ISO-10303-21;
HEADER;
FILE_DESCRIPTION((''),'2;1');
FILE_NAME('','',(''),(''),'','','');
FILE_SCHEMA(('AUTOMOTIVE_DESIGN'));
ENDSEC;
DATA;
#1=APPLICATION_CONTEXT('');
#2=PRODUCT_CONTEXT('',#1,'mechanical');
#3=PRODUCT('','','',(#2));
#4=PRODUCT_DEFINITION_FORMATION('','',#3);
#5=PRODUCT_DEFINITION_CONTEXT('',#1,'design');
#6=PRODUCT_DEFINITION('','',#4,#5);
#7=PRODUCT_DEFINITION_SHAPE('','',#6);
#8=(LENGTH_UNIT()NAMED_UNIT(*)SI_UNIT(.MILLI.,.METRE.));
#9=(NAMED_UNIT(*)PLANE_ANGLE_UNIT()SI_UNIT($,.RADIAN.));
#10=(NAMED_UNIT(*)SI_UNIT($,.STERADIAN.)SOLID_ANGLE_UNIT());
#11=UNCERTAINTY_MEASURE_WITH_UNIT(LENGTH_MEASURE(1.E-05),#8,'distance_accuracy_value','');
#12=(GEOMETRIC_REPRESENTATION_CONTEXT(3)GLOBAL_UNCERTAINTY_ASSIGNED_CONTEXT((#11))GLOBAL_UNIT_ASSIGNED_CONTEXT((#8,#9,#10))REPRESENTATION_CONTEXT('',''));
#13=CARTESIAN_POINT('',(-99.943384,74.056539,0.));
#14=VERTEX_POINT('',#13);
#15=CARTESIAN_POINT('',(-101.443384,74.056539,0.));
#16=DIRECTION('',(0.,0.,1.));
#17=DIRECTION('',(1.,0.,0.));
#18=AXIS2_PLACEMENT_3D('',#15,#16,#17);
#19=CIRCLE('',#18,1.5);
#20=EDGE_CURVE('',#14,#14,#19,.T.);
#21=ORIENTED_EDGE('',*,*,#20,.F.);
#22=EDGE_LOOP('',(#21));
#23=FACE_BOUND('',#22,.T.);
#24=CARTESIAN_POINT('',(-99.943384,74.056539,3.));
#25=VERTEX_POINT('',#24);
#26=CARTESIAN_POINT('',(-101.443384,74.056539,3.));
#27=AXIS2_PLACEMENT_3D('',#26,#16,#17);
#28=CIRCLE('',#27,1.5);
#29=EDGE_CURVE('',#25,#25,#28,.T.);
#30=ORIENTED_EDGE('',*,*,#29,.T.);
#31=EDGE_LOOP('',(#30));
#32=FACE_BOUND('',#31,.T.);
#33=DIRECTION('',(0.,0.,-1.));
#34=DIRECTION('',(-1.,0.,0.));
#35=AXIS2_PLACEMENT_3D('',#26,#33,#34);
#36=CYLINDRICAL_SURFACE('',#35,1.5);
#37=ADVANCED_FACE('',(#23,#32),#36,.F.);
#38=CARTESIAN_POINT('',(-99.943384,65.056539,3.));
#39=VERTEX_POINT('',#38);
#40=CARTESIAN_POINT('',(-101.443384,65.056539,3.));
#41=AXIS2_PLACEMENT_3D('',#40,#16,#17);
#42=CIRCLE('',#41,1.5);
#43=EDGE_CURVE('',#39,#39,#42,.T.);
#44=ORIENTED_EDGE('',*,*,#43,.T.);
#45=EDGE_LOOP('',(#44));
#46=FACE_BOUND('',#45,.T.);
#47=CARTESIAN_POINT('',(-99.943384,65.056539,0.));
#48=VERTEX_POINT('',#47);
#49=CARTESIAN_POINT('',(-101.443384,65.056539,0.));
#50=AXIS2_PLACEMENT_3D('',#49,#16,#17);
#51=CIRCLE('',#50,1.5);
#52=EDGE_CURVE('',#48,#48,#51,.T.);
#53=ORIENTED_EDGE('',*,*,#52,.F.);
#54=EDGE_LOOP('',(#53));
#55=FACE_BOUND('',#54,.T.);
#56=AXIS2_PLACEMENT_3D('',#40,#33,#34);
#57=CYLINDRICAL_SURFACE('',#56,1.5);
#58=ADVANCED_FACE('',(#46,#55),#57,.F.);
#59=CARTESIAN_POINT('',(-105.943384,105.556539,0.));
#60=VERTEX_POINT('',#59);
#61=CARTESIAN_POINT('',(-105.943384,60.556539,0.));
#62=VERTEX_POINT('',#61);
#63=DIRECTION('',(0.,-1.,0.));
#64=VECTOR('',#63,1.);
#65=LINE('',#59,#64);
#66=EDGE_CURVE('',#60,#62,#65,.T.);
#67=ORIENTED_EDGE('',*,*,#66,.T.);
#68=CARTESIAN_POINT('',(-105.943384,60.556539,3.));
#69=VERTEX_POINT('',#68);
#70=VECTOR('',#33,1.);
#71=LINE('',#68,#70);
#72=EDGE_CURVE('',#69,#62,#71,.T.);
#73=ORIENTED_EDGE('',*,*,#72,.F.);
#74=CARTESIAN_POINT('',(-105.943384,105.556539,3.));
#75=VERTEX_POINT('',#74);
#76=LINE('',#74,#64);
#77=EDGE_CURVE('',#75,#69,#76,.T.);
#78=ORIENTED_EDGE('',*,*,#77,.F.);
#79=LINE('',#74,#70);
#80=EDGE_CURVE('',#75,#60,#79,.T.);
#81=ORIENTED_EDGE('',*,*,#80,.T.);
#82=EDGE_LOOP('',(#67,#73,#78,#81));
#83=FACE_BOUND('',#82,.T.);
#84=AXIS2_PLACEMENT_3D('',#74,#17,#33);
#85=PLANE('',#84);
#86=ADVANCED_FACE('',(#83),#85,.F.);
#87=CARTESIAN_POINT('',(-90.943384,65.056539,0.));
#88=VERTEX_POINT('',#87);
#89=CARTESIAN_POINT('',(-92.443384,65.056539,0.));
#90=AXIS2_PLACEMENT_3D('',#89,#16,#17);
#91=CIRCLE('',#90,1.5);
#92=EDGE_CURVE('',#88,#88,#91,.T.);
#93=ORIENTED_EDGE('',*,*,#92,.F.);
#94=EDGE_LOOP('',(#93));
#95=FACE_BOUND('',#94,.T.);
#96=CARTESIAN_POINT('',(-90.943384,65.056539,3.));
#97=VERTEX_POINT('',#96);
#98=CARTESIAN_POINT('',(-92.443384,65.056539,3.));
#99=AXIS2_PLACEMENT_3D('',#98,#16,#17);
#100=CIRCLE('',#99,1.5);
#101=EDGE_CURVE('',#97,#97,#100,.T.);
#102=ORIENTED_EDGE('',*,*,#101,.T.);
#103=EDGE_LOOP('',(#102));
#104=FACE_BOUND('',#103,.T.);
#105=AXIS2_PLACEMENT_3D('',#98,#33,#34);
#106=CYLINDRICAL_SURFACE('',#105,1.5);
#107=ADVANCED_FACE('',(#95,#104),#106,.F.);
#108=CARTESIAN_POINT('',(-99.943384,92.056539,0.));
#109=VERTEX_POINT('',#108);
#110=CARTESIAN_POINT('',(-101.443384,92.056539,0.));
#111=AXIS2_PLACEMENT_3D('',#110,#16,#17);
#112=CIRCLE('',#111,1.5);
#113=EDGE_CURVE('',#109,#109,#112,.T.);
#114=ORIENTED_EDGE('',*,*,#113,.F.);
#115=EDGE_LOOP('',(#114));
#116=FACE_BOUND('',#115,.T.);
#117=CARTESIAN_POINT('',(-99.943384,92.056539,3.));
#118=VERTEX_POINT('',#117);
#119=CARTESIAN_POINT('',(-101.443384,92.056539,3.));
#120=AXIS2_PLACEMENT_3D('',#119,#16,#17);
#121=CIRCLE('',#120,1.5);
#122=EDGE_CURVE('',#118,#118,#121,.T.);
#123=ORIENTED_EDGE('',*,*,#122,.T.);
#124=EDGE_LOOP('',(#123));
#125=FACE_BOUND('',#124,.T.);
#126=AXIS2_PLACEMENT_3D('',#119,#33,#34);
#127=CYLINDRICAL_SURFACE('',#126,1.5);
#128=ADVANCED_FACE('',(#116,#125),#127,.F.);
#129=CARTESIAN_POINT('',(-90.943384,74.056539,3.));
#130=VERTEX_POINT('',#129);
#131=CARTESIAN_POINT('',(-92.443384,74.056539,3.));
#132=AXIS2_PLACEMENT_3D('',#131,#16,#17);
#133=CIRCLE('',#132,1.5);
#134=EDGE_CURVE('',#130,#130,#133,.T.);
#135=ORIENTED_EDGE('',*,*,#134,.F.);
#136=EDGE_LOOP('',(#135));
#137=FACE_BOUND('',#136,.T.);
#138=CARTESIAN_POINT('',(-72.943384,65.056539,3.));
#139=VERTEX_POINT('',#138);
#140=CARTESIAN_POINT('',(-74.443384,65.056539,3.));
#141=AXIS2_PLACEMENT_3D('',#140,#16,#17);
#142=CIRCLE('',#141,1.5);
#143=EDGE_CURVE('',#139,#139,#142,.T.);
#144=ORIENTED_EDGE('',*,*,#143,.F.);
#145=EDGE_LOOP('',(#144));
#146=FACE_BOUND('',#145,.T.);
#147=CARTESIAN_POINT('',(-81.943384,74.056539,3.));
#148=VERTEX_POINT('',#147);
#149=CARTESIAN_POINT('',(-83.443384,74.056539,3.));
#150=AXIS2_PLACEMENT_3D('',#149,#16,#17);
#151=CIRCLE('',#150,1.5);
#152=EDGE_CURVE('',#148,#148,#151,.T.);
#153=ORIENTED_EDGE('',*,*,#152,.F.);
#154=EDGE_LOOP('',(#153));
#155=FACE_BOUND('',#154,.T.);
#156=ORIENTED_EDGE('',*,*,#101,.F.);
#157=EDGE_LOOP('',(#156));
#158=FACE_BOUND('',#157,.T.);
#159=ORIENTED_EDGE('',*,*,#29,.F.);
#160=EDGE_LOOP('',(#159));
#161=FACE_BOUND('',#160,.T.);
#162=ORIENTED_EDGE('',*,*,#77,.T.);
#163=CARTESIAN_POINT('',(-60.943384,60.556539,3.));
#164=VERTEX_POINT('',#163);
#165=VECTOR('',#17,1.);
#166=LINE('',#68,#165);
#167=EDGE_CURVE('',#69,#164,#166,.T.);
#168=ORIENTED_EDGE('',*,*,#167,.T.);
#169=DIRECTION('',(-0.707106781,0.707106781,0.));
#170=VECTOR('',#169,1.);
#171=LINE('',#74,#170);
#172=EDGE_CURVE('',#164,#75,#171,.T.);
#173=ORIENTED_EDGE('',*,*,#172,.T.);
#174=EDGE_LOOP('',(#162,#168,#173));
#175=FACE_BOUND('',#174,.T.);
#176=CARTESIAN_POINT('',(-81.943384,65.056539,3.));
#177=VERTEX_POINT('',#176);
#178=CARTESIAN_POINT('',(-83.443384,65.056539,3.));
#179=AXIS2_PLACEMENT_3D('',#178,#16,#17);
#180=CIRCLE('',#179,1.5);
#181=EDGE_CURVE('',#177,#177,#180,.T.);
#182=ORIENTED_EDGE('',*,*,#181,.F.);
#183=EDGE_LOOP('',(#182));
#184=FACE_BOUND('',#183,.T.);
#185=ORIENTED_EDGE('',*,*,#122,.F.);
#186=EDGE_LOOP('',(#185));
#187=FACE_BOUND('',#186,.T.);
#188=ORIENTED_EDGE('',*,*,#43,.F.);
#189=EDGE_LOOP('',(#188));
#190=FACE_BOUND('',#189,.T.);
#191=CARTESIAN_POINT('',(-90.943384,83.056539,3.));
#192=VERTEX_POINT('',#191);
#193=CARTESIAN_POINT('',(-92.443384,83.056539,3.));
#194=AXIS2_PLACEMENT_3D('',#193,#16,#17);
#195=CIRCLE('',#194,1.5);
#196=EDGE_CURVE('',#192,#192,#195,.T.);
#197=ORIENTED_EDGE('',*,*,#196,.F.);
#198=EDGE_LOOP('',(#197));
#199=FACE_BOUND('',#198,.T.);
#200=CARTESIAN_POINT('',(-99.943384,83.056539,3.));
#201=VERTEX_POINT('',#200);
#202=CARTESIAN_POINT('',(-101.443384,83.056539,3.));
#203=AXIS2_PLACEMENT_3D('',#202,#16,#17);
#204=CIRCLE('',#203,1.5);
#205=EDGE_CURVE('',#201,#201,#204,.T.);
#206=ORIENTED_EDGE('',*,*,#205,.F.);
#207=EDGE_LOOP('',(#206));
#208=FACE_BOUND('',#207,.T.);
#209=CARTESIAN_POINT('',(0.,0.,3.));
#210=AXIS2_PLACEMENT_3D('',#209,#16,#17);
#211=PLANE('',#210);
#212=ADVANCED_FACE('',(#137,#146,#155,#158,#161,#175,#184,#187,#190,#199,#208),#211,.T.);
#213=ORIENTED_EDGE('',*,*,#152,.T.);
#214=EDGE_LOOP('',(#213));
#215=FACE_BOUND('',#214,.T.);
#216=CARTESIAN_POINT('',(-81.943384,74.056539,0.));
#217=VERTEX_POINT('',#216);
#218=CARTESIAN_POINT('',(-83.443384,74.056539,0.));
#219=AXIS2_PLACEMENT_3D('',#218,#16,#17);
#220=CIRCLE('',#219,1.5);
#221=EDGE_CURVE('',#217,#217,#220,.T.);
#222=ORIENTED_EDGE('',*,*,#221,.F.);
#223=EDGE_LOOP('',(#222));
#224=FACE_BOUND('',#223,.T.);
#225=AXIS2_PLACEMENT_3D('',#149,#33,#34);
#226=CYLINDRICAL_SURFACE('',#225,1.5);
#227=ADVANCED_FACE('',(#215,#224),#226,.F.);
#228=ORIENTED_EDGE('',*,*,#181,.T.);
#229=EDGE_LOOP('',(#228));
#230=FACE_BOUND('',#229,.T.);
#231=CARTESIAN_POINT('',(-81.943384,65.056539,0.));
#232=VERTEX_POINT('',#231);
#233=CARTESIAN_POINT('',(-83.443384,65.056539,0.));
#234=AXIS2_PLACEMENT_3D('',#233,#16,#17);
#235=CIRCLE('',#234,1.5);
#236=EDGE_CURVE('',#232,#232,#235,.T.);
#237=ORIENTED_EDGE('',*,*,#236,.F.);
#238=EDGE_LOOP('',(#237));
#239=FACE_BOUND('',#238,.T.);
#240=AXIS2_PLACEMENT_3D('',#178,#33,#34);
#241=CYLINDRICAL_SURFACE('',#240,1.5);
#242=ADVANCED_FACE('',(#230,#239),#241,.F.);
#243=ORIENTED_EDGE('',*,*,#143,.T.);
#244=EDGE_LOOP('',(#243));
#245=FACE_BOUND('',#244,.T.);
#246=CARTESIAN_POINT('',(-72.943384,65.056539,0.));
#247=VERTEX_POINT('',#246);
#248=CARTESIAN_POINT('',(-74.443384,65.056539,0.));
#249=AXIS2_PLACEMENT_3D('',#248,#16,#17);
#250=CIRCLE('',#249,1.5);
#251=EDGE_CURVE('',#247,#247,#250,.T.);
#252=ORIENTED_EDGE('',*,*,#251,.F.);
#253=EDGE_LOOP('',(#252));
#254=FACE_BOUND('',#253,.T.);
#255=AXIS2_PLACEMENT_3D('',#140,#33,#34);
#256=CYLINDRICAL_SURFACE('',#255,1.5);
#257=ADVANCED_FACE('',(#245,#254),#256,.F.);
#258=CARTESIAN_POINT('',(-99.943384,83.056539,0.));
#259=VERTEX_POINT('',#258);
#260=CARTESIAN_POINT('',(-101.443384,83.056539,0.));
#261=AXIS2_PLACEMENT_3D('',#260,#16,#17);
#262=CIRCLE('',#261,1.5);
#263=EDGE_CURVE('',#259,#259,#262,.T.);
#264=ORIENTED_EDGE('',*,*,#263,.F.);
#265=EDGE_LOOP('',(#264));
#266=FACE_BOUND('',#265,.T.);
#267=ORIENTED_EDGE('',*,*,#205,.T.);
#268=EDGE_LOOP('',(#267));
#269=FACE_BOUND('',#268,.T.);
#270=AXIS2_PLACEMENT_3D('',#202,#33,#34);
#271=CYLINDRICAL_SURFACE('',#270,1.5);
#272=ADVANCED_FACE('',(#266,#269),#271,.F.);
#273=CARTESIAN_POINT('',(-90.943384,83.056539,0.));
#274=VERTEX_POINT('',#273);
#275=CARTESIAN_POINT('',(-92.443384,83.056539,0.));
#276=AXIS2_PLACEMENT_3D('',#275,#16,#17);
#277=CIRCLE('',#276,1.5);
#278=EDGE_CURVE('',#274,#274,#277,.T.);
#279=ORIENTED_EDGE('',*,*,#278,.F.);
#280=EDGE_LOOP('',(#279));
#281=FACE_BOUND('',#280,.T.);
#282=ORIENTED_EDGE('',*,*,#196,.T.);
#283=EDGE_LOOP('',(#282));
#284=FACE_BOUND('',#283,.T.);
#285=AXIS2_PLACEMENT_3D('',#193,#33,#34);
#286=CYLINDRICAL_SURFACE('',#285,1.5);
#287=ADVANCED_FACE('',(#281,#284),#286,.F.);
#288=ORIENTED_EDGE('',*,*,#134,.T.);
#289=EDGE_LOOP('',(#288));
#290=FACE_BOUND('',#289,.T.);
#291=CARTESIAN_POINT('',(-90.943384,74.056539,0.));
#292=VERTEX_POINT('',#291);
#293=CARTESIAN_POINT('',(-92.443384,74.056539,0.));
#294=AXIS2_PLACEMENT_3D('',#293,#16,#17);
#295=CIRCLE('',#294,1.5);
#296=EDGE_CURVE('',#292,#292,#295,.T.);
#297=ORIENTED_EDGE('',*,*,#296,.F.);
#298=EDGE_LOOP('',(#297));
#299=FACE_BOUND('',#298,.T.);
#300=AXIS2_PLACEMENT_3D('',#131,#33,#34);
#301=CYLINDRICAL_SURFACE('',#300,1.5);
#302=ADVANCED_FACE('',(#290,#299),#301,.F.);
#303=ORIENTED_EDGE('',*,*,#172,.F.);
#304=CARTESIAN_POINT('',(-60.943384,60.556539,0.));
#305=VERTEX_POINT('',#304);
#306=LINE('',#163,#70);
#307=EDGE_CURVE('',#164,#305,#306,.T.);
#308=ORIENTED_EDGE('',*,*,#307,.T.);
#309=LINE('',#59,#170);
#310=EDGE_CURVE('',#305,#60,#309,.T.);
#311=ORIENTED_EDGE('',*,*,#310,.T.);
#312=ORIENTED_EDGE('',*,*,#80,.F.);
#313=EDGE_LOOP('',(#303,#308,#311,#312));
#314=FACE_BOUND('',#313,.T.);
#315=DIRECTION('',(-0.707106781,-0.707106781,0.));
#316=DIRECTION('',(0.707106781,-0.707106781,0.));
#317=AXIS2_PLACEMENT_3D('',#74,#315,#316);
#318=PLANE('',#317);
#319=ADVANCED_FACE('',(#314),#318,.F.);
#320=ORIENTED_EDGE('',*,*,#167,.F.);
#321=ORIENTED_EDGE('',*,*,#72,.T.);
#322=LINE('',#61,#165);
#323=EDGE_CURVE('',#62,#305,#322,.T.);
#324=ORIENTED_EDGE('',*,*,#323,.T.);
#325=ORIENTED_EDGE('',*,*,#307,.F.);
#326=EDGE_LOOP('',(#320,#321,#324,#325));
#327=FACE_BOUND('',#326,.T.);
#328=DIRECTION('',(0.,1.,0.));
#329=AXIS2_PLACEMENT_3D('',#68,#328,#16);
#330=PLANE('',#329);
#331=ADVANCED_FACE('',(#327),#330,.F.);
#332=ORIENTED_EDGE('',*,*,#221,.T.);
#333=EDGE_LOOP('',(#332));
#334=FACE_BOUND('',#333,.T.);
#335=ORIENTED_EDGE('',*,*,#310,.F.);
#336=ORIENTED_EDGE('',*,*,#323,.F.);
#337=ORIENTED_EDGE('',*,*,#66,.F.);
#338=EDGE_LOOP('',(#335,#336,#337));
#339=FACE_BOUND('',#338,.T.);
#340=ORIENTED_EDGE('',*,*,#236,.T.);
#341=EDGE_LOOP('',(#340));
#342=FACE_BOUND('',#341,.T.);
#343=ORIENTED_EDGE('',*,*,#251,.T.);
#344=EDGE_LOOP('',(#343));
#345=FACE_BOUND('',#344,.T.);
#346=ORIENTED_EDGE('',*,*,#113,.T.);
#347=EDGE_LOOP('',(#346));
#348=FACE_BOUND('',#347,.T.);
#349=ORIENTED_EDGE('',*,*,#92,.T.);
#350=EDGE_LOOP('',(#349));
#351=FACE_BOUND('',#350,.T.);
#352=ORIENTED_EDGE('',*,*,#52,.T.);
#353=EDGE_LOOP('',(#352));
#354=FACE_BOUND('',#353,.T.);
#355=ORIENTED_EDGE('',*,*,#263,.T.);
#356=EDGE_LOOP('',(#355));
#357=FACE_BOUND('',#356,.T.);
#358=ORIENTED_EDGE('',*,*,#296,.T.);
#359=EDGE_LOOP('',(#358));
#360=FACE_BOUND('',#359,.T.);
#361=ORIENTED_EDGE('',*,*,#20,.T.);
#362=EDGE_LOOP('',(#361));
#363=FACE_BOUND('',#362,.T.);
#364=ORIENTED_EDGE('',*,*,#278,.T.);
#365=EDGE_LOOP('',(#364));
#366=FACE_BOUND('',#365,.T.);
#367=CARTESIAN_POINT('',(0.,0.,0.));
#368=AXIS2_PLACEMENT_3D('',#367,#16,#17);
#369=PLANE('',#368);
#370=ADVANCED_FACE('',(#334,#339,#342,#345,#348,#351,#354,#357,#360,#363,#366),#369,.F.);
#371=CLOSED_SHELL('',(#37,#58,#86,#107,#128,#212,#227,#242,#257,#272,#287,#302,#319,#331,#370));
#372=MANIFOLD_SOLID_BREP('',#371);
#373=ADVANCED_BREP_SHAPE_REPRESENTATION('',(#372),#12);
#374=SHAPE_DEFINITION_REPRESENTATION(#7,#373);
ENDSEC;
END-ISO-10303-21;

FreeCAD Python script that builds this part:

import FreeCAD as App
import Part
import Sketcher
from FreeCAD import Vector
Q = App.Units.Quantity

doc = App.newDocument("Part")
params = doc.addObject("Spreadsheet::Sheet", "Params")
for row, (alias, value) in enumerate([
    ("sketch1_diameter", "3 mm"),
    ("sketch1_width", "45 mm"),
    ("pad1_length", "3 mm"),
], start=1):
    params.set(f"A{row}", alias)
    params.set(f"B{row}", "=" + value)
    params.setAlias(f"B{row}", alias)

body = doc.addObject("PartDesign::Body", "Body")

# Sketch on XY plane
sketch1 = doc.addObject("Sketcher::SketchObject", "Sketch")
body.addObject(sketch1)
sketch1.AttachmentSupport = (doc.XY_Plane, [""])
sketch1.MapMode = "FlatFace"
sketch1.addGeometry([
    Part.LineSegment(Vector(-105.9, 105.6, 0), Vector(-105.9, 60.6, 0)),  # 0
    Part.LineSegment(Vector(-105.9, 60.6, 0), Vector(-60.9, 60.6, 0)),  # 1
    Part.LineSegment(Vector(-60.9, 60.6, 0), Vector(-105.9, 105.6, 0)),  # 2
    Part.Circle(Vector(-101.4, 65.1, 0), Vector(0, 0, 1), 1.5),  # 3
    Part.Circle(Vector(-92.4, 65.1, 0), Vector(0, 0, 1), 1.5),  # 4
    Part.Circle(Vector(-101.4, 74.1, 0), Vector(0, 0, 1), 1.5),  # 5
    Part.Circle(Vector(-92.4, 74.1, 0), Vector(0, 0, 1), 1.5),  # 6
    Part.Circle(Vector(-83.4, 65.1, 0), Vector(0, 0, 1), 1.5),  # 7
    Part.Circle(Vector(-74.4, 65.1, 0), Vector(0, 0, 1), 1.5),  # 8
    Part.Circle(Vector(-83.4, 74.1, 0), Vector(0, 0, 1), 1.5),  # 9
    Part.Circle(Vector(-101.4, 83.1, 0), Vector(0, 0, 1), 1.5),  # 10
    Part.Circle(Vector(-92.4, 83.1, 0), Vector(0, 0, 1), 1.5),  # 11
    Part.Circle(Vector(-101.4, 92.1, 0), Vector(0, 0, 1), 1.5),  # 12
], False)
sketch1.addConstraint([
    Sketcher.Constraint("Coincident", 0, 2, 1, 1),
    Sketcher.Constraint("Coincident", 1, 2, 2, 1),
    Sketcher.Constraint("Coincident", 2, 2, 0, 1),
    Sketcher.Constraint("Vertical", 0),
    Sketcher.Constraint("Horizontal", 1),
    Sketcher.Constraint("Equal", 3, 4),
    Sketcher.Constraint("Equal", 4, 5),
    Sketcher.Constraint("Equal", 5, 6),
    Sketcher.Constraint("Equal", 6, 7),
    Sketcher.Constraint("Equal", 7, 8),
    Sketcher.Constraint("Equal", 8, 9),
    Sketcher.Constraint("Equal", 9, 10),
    Sketcher.Constraint("Equal", 10, 11),
    Sketcher.Constraint("Equal", 11, 12),
    Sketcher.Constraint("Horizontal", 3, 3, 4, 3),
    Sketcher.Constraint("Horizontal", 5, 3, 6, 3),
    Sketcher.Constraint("Horizontal", 4, 3, 7, 3),
    Sketcher.Constraint("Horizontal", 7, 3, 8, 3),
    Sketcher.Constraint("Horizontal", 6, 3, 9, 3),
    Sketcher.Constraint("Horizontal", 10, 3, 11, 3),
    Sketcher.Constraint("Vertical", 3, 3, 5, 3),
    Sketcher.Constraint("Vertical", 4, 3, 6, 3),
    Sketcher.Constraint("Vertical", 7, 3, 9, 3),
    Sketcher.Constraint("Vertical", 5, 3, 10, 3),
    Sketcher.Constraint("Vertical", 6, 3, 11, 3),
    Sketcher.Constraint("Vertical", 10, 3, 12, 3),
    Sketcher.Constraint("Equal", 1, 0),
    Sketcher.Constraint("Diameter", 3, Q("3 mm")),
    Sketcher.Constraint("DistanceX", 1, 1, 1, 2, Q("45 mm")),
    Sketcher.Constraint("DistanceX", 3, 3, 4, 3, Q("9 mm")),
    Sketcher.Constraint("DistanceY", 3, 3, 5, 3, Q("9 mm")),
    Sketcher.Constraint("DistanceX", 4, 3, 7, 3, Q("9 mm")),
    Sketcher.Constraint("DistanceX", 7, 3, 8, 3, Q("9 mm")),
    Sketcher.Constraint("DistanceY", 5, 3, 10, 3, Q("9 mm")),
    Sketcher.Constraint("DistanceY", 10, 3, 12, 3, Q("9 mm")),
    Sketcher.Constraint("DistanceX", 0, 2, 3, 3, Q("4.5 mm")),
    Sketcher.Constraint("DistanceY", 0, 2, 3, 3, Q("4.5 mm")),
    Sketcher.Constraint("DistanceY", -1, 1, 3, 3, Q("65.056539 mm")),
    Sketcher.Constraint("DistanceX", 3, 3, -1, 1, Q("101.443384 mm")),
])
sketch1.setExpression("Constraints[27]", "Params.sketch1_diameter")
sketch1.setExpression("Constraints[28]", "Params.sketch1_width")
pad1 = doc.addObject("PartDesign::Pad", "Pad")
body.addObject(pad1)
pad1.Profile = sketch1
pad1.setExpression("Length", "Params.pad1_length")

doc.recompute()
